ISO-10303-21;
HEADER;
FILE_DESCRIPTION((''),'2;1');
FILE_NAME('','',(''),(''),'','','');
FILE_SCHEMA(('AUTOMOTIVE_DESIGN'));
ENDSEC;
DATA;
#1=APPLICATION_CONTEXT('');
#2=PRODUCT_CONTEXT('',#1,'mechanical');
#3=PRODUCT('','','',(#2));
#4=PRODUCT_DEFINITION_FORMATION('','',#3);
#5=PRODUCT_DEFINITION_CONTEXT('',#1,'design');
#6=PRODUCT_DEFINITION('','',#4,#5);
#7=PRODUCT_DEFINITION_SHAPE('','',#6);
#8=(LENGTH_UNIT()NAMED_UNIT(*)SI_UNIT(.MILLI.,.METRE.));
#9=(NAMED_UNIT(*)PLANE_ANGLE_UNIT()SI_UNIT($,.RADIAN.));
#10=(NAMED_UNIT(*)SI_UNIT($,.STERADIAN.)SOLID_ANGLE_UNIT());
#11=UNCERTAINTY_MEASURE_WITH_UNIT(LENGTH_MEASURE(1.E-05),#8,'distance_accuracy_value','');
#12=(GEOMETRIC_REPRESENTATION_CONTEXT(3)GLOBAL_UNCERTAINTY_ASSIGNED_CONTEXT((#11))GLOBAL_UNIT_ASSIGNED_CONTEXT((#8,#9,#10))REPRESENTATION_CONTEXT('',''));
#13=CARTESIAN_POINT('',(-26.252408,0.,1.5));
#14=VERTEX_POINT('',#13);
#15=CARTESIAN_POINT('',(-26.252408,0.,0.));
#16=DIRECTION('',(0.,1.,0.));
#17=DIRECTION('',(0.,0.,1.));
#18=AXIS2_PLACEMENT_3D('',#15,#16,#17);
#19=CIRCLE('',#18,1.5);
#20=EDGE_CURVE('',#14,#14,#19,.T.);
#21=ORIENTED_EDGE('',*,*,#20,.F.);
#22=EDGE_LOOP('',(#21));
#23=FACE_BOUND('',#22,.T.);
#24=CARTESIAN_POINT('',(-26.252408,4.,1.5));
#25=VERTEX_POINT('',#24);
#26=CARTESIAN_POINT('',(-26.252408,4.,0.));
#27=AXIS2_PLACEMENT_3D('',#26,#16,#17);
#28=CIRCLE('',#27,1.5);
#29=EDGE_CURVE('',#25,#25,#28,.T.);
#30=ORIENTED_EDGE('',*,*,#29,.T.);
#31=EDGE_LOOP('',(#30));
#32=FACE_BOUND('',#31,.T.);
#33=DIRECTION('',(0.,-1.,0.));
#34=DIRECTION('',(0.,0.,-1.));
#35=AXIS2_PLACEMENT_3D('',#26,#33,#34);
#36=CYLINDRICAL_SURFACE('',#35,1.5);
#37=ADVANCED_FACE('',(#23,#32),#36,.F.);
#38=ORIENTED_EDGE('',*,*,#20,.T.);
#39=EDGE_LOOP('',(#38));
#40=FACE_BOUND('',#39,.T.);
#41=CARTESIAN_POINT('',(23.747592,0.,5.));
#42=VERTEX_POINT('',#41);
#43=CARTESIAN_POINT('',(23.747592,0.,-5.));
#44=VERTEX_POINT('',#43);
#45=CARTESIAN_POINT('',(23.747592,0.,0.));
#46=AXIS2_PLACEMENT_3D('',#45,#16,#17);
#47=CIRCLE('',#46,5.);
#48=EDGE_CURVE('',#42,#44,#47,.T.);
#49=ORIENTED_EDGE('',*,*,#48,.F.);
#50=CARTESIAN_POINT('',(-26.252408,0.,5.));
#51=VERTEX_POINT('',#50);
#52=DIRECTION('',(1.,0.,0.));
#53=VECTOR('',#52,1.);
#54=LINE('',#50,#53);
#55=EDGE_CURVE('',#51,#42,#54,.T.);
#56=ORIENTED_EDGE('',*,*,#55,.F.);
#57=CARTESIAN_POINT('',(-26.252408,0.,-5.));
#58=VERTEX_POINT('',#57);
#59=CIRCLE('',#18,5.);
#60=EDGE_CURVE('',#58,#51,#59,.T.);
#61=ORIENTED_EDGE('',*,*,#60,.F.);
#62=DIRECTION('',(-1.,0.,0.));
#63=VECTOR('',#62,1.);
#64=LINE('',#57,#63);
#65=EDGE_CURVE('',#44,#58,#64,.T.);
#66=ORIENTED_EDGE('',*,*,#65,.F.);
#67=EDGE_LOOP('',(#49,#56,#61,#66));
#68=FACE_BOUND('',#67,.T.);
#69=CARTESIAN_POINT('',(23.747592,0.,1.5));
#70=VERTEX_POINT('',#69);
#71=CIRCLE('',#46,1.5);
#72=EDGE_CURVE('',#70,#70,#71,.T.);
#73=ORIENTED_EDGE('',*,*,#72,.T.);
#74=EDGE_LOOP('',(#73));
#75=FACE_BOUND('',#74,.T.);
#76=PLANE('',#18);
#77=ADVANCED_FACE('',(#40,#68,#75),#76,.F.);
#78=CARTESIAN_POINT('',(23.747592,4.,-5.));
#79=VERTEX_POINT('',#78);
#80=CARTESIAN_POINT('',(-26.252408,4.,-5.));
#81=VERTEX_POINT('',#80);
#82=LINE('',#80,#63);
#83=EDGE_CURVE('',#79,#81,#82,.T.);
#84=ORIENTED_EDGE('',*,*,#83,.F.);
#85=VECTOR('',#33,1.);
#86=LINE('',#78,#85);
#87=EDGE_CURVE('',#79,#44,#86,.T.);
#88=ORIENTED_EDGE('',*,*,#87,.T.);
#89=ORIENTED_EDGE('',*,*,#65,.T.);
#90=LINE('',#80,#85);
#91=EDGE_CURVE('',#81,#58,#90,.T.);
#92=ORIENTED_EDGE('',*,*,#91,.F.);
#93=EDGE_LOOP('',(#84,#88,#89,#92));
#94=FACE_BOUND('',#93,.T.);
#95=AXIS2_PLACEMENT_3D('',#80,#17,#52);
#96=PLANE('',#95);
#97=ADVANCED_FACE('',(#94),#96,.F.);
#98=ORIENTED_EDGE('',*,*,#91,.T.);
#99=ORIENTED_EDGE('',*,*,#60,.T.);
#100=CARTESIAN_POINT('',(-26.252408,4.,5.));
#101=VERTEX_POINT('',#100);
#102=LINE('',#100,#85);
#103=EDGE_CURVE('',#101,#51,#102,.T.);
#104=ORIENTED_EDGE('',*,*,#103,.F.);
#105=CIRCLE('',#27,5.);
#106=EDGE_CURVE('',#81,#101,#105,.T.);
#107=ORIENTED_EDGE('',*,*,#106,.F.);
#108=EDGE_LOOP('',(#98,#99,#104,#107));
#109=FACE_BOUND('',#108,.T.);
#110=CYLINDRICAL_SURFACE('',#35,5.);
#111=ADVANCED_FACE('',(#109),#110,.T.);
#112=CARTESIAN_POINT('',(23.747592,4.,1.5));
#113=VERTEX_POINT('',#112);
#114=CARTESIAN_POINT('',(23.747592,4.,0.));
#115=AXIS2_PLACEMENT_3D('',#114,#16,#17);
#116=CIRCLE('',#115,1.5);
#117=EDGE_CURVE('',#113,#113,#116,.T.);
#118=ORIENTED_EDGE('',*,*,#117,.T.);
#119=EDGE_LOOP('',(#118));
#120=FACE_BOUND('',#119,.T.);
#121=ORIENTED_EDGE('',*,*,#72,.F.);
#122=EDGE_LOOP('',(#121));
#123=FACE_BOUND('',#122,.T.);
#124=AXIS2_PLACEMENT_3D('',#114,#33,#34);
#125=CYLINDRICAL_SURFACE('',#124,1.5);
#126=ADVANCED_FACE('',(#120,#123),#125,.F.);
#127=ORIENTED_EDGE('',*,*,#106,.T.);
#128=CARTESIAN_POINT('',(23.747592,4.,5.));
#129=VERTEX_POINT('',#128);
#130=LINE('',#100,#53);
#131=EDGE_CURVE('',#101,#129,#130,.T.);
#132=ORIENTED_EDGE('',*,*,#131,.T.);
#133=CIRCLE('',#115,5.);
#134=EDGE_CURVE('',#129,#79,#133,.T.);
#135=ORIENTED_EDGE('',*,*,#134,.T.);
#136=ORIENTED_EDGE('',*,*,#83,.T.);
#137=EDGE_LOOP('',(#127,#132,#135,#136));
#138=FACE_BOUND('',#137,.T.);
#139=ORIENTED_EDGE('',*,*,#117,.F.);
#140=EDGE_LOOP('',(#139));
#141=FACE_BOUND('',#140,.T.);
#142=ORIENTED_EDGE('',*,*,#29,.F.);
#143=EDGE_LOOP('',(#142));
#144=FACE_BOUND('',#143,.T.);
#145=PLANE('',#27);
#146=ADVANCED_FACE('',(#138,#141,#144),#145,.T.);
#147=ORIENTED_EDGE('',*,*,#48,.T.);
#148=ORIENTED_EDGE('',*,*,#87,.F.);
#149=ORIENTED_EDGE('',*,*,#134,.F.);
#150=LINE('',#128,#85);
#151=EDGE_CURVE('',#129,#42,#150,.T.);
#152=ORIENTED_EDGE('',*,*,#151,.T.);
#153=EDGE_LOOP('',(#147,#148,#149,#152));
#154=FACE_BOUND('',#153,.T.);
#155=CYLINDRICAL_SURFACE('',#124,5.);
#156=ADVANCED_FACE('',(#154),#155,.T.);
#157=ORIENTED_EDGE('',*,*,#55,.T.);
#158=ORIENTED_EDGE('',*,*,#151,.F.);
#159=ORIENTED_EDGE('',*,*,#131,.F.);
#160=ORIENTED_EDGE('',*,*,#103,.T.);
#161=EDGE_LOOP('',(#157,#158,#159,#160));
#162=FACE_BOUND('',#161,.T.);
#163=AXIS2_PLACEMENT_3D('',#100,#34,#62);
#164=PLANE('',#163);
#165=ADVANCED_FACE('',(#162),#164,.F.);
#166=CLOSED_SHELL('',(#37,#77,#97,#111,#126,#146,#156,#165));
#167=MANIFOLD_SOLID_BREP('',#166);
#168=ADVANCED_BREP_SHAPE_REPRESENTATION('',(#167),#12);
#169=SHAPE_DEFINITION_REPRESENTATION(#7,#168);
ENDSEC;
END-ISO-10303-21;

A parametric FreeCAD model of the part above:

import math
import FreeCAD as App
import Part
import Sketcher
Q = App.Units.Quantity

doc = App.newDocument("Part")
body = doc.addObject("PartDesign::Body", "Body")

# Sketch on XZ plane
sketch1 = doc.addObject("Sketcher::SketchObject", "Sketch")
body.addObject(sketch1)
sketch1.AttachmentSupport = (doc.XZ_Plane, [""])
sketch1.MapMode = "FlatFace"
sketch1.addGeometry([
    Part.LineSegment(App.Vector(23.747592, -5, 0), App.Vector(-26.252408, -5, 0)),  # 0
    Part.ArcOfCircle(Part.Circle(App.Vector(-26.252408, 0, 0), App.Vector(0, 0, 1), 5), math.radians(90), math.radians(270)),  # 1
    Part.LineSegment(App.Vector(-26.252408, 5, 0), App.Vector(23.747592, 5, 0)),  # 2
    Part.ArcOfCircle(Part.Circle(App.Vector(23.747592, 0, 0), App.Vector(0, 0, 1), 5), math.radians(-90), math.radians(90)),  # 3
    Part.Circle(App.Vector(23.747592, 0, 0), App.Vector(0, 0, 1), 1.5),  # 4
    Part.Circle(App.Vector(-26.252408, 0, 0), App.Vector(0, 0, 1), 1.5),  # 5
], False)
sketch1.addConstraint([
    Sketcher.Constraint("Tangent", 0, 2, 1, 2),
    Sketcher.Constraint("Tangent", 1, 1, 2, 1),
    Sketcher.Constraint("Tangent", 2, 2, 3, 2),
    Sketcher.Constraint("Tangent", 3, 1, 0, 1),
    Sketcher.Constraint("Horizontal", 0),
    Sketcher.Constraint("Horizontal", 2),
    Sketcher.Constraint("Coincident", 4, 3, 3, 3),
    Sketcher.Constraint("Coincident", 5, 3, 1, 3),
    Sketcher.Constraint("Equal", 4, 5),
    Sketcher.Constraint("PointOnObject", 1, 3, -1),
    Sketcher.Constraint("Diameter", 4, Q("3 mm")),
    Sketcher.Constraint("Radius", 1, Q("5 mm")),
    Sketcher.Constraint("DistanceX", 0, 2, 0, 1, Q("50 mm")),
    Sketcher.Constraint("DistanceX", 1, 3, -1, 1, Q("26.252408 mm")),
])
pad1 = doc.addObject("PartDesign::Pad", "Pad")
body.addObject(pad1)
pad1.Profile = sketch1
pad1.Length = 4
pad1.Reversed = True

doc.recompute()
